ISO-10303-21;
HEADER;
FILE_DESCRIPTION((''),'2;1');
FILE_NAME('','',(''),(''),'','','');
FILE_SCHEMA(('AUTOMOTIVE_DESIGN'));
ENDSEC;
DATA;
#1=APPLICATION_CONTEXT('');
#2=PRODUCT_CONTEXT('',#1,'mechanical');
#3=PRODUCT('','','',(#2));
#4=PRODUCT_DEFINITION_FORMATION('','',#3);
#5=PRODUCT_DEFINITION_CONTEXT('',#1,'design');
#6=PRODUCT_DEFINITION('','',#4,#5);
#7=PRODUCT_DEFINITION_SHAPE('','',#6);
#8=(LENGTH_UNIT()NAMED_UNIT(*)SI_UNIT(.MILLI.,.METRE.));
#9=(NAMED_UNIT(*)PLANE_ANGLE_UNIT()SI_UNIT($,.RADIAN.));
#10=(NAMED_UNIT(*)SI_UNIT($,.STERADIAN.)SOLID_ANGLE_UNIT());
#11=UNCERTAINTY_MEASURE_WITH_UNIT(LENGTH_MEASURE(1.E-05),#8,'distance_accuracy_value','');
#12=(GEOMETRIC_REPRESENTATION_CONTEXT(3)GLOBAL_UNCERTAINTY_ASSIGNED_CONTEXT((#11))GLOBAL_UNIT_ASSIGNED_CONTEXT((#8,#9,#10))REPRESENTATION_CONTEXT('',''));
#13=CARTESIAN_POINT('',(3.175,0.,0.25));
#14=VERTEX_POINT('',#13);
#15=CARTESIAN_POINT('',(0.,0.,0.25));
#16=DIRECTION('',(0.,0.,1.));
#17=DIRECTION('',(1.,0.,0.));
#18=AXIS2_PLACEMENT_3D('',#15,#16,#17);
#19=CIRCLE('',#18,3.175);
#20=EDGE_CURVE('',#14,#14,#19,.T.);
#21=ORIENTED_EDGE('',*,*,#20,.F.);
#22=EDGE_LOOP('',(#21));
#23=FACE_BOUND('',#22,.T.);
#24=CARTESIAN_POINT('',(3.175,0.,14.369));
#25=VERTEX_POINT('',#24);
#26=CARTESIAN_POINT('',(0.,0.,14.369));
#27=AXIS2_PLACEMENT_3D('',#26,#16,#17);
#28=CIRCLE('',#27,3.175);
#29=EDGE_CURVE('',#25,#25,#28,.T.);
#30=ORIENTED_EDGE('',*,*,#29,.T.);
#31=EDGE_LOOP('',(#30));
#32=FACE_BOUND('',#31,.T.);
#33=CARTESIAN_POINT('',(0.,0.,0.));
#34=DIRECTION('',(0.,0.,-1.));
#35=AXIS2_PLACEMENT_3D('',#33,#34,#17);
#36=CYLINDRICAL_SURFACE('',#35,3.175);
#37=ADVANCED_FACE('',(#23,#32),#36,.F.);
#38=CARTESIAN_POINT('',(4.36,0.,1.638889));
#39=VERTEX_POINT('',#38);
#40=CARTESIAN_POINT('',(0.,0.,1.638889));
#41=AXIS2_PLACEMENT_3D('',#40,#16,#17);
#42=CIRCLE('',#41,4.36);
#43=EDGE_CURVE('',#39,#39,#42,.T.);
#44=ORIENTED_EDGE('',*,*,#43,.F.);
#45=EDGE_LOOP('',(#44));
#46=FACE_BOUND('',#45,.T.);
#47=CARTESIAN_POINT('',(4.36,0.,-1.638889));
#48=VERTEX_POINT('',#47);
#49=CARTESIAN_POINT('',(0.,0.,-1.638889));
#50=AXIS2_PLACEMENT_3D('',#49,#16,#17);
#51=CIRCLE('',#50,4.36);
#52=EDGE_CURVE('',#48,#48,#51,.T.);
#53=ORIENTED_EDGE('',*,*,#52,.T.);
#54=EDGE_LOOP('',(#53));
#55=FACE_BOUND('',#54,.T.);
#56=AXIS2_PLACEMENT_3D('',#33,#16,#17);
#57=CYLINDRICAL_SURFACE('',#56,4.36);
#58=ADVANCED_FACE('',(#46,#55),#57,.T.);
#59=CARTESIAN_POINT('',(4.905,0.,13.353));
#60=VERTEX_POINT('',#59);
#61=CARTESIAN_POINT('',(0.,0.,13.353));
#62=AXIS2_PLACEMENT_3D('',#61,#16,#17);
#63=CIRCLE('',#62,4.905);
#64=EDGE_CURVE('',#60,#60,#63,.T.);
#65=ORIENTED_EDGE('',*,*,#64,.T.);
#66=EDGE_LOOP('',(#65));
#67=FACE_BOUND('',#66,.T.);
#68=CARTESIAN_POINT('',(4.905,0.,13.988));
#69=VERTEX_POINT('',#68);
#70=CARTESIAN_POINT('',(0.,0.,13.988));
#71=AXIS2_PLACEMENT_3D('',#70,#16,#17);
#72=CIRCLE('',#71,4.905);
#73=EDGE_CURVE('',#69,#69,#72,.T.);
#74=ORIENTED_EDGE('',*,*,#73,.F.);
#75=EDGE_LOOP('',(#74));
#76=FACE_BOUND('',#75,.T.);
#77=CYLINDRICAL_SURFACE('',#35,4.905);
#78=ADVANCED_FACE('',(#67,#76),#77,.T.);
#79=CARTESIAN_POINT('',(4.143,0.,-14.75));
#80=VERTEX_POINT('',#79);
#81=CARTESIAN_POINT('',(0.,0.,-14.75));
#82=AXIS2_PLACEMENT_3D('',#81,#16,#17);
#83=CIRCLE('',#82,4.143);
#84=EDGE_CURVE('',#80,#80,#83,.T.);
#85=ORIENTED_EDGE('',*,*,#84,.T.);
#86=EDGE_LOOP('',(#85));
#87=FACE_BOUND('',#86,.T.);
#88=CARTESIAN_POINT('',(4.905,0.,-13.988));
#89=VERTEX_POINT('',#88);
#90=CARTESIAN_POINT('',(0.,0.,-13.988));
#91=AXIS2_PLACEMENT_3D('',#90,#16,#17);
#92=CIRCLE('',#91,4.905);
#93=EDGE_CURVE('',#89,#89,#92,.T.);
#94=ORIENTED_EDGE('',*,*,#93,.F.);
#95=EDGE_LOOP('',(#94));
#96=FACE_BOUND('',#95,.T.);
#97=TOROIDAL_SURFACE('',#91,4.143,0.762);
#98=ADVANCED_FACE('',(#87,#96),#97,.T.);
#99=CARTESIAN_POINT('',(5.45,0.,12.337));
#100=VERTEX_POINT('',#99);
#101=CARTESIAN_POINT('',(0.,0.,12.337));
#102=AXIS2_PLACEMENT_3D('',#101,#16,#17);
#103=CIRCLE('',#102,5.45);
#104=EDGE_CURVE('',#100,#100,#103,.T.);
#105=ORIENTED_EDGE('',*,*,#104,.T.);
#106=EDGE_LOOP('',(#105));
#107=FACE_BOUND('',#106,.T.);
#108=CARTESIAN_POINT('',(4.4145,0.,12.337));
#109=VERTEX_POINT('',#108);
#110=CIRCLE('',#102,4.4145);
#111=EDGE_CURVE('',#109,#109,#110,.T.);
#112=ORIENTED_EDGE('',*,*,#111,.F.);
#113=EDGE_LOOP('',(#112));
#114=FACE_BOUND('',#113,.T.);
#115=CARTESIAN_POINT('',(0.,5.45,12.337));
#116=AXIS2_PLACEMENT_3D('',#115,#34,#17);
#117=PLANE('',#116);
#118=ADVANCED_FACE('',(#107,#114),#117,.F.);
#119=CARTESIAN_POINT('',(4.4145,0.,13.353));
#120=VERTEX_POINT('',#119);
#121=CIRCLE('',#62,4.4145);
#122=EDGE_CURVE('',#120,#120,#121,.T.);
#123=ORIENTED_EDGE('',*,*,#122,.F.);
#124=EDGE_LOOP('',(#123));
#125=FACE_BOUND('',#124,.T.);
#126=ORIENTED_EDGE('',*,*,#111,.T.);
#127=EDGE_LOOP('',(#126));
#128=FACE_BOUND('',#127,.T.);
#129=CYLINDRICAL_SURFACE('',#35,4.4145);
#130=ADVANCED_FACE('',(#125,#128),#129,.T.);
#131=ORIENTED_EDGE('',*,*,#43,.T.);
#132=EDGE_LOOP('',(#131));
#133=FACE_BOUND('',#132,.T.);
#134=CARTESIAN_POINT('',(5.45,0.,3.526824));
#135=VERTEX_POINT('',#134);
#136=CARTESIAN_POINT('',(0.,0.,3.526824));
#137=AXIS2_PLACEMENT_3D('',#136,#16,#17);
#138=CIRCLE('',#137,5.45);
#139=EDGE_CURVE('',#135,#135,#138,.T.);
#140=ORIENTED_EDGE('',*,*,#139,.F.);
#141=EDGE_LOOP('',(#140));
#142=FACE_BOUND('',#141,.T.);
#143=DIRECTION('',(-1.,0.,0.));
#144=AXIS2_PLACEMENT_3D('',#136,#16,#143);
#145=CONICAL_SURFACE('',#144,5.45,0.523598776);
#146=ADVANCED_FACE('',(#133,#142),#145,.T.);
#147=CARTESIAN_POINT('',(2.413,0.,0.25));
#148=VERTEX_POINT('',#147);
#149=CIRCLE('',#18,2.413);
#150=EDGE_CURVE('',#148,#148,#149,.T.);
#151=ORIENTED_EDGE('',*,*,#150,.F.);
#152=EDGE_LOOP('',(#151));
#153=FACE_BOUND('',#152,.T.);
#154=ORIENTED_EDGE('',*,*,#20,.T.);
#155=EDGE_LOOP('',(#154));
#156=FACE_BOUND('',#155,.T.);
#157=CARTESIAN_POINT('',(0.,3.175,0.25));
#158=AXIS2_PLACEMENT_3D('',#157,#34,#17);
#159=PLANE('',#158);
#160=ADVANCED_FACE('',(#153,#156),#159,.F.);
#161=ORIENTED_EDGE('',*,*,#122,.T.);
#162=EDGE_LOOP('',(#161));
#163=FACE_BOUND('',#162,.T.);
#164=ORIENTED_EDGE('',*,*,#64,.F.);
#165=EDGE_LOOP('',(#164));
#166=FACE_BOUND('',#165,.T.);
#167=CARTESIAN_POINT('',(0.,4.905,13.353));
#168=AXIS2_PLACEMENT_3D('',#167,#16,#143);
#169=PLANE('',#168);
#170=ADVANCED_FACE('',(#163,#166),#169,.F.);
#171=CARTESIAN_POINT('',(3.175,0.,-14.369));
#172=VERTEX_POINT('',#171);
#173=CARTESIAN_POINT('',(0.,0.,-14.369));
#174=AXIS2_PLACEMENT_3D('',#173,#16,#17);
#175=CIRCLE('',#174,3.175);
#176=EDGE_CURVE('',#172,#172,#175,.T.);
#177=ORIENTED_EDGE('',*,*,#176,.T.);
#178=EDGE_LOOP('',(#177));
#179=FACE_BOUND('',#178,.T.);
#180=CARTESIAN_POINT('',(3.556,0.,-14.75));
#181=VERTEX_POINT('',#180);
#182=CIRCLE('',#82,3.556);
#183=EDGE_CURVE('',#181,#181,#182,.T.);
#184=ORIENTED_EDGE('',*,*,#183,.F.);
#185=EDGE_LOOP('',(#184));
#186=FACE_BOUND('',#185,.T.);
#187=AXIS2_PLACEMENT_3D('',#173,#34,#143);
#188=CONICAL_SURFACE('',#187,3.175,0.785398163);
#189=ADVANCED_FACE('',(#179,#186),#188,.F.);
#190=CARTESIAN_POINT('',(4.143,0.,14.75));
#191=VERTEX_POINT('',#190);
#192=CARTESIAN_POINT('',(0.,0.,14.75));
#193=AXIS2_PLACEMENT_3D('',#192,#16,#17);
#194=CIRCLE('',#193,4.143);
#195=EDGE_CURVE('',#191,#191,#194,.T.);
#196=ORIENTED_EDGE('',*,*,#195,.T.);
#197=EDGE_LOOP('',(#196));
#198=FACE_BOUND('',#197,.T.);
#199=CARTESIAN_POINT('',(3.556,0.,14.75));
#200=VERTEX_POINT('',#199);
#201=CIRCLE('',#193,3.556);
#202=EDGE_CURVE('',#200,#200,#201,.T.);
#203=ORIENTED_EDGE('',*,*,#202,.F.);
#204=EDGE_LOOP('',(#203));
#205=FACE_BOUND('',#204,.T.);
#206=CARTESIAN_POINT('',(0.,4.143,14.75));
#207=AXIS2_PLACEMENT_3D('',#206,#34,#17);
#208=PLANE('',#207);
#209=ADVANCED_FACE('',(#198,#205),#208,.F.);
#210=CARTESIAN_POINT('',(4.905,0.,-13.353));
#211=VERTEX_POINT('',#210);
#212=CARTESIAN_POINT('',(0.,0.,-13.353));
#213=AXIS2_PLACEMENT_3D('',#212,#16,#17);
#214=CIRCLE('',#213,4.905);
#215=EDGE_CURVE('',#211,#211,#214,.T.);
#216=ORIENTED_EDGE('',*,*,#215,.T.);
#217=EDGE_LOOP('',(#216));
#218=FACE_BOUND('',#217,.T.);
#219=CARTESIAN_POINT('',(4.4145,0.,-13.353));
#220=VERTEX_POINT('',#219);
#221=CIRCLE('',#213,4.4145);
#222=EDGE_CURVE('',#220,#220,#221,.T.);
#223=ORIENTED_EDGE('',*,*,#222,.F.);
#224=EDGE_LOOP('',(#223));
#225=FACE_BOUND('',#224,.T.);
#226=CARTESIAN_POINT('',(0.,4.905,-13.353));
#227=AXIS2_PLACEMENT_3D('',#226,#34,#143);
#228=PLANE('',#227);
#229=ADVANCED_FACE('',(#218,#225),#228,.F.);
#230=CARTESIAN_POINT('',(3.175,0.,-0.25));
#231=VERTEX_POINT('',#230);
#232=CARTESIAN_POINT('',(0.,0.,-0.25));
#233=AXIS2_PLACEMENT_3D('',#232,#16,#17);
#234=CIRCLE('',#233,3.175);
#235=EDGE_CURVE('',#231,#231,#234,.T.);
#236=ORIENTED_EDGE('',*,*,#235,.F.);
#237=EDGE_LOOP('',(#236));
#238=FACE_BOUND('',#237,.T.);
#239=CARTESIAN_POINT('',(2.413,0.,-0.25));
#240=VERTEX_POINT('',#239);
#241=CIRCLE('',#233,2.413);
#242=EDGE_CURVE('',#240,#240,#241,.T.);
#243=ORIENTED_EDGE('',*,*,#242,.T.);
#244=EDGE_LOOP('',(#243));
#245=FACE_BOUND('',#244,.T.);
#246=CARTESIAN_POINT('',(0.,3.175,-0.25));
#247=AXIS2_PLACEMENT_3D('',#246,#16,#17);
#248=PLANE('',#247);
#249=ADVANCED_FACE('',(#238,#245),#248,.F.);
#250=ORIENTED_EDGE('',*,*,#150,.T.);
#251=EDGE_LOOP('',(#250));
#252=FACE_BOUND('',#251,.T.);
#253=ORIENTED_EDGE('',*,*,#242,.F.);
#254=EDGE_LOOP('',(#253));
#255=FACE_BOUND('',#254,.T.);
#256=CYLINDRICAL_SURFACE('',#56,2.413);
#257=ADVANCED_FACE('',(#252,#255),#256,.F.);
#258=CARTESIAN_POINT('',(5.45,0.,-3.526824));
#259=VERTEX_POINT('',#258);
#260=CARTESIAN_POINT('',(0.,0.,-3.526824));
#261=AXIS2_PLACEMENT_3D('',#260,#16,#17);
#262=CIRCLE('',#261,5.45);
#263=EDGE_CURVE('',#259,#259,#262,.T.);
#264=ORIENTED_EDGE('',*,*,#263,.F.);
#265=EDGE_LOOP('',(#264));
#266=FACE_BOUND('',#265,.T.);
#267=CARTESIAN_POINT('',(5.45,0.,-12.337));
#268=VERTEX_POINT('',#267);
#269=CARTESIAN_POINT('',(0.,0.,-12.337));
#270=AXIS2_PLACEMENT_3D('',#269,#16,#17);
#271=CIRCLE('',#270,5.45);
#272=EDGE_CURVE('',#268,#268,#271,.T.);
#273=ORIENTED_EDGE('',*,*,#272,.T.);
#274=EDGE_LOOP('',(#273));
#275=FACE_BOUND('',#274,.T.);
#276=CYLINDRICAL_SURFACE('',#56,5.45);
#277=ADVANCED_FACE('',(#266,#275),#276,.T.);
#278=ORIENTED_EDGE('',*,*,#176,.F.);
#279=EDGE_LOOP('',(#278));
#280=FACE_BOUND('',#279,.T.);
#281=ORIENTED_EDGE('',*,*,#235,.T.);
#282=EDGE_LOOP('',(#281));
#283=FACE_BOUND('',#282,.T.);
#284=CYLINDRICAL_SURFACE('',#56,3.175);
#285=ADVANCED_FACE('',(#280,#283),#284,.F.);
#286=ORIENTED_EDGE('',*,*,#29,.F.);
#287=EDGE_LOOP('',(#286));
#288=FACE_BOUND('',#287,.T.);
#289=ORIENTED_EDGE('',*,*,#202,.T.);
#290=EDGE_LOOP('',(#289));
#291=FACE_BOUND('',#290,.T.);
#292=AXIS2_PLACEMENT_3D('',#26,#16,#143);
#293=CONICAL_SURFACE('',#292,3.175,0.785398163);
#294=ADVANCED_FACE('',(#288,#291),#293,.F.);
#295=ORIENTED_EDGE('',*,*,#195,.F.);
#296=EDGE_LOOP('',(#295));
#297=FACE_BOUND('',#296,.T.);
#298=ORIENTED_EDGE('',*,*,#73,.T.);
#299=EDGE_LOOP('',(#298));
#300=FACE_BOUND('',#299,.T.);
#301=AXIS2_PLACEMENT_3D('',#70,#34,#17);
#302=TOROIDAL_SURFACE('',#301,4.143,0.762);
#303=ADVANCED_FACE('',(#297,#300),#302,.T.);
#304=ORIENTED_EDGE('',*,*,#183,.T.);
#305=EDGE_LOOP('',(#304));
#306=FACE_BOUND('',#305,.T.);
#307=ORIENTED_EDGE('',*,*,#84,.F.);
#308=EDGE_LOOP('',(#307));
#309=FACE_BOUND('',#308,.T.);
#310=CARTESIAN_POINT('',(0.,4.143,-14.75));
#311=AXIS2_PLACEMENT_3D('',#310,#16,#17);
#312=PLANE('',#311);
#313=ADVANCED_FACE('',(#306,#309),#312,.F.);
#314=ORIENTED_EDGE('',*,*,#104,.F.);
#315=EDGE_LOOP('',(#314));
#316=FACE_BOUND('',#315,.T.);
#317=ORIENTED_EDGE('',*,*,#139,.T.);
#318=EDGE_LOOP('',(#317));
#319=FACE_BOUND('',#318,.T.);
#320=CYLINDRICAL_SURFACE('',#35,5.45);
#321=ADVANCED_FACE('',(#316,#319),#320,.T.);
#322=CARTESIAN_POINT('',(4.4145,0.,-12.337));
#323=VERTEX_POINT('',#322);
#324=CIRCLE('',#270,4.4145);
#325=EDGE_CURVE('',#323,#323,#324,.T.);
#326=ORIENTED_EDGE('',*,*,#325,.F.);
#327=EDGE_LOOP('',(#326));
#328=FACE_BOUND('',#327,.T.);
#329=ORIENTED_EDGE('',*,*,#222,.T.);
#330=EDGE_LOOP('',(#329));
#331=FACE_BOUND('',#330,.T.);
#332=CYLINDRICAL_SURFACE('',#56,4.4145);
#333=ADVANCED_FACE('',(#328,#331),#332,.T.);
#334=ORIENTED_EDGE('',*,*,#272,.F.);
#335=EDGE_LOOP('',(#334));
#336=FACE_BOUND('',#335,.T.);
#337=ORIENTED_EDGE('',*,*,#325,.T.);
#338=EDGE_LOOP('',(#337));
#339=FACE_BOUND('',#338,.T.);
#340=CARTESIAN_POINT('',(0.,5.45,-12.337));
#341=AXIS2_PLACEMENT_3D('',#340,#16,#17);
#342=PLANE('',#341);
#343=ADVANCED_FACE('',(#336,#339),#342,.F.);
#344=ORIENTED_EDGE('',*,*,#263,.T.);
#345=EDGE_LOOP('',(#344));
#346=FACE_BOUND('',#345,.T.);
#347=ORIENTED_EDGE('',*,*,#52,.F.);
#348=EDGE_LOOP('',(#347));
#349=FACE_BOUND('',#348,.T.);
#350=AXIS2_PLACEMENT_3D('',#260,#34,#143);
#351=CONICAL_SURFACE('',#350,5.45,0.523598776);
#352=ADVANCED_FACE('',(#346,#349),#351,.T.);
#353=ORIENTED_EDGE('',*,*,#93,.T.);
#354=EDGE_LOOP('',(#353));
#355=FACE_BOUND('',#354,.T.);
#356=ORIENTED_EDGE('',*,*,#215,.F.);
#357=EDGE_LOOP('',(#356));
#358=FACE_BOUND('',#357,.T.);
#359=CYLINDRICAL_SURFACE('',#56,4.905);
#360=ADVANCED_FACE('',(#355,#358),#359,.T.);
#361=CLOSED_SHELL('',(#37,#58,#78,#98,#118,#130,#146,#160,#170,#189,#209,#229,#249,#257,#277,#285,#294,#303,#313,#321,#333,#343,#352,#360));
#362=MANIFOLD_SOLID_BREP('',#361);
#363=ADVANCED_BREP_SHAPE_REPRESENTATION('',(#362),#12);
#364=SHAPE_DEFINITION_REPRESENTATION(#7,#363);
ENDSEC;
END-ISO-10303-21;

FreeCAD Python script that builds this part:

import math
import FreeCAD as App
import Part
import Sketcher

V = App.Vector
Q = App.Units.Quantity

doc = App.newDocument("Part")
body = doc.addObject("PartDesign::Body", "Body")

# Sketch on YZ plane
sketch1 = body.newObject("Sketcher::SketchObject", "Sketch")
sketch1.AttachmentSupport = (doc.getObject("YZ_Plane"), [""])
sketch1.MapMode = "FlatFace"
sketch1.addGeometry([
    Part.LineSegment(V(4.91, -13.99, 0), V(4.91, -13.35, 0)),  # 0
    Part.LineSegment(V(4.91, -13.35, 0), V(4.41, -13.35, 0)),  # 1
    Part.LineSegment(V(4.41, -13.35, 0), V(4.41, -12.34, 0)),  # 2
    Part.LineSegment(V(4.41, -12.34, 0), V(5.45, -12.34, 0)),  # 3
    Part.LineSegment(V(5.45, -12.34, 0), V(5.45, -3.53, 0)),  # 4
    Part.LineSegment(V(5.45, -3.53, 0), V(4.36, -1.64, 0)),  # 5
    Part.LineSegment(V(4.36, -1.64, 0), V(4.36, 0, 0)),  # 6
    Part.LineSegment(V(4.36, 0, 0), V(2.41, 0, 0)),  # 7
    Part.LineSegment(V(2.41, 0, 0), V(2.41, -0.25, 0)),  # 8
    Part.LineSegment(V(2.41, -0.25, 0), V(3.17, -0.25, 0)),  # 9
    Part.LineSegment(V(3.17, -0.25, 0), V(3.17, -14.37, 0)),  # 10
    Part.LineSegment(V(3.17, -14.37, 0), V(3.56, -14.75, 0)),  # 11
    Part.LineSegment(V(3.56, -14.75, 0), V(4.14, -14.75, 0)),  # 12
    Part.ArcOfCircle(Part.Circle(V(4.14, -13.99, 0), V(0, 0, 1), 0.76), math.radians(-90), math.radians(0)),  # 13
], False)
sketch1.addConstraint([
    Sketcher.Constraint("Coincident", 0, 2, 1, 1),
    Sketcher.Constraint("Coincident", 1, 2, 2, 1),
    Sketcher.Constraint("Coincident", 2, 2, 3, 1),
    Sketcher.Constraint("Coincident", 3, 2, 4, 1),
    Sketcher.Constraint("Coincident", 4, 2, 5, 1),
    Sketcher.Constraint("Coincident", 5, 2, 6, 1),
    Sketcher.Constraint("Coincident", 6, 2, 7, 1),
    Sketcher.Constraint("Coincident", 7, 2, 8, 1),
    Sketcher.Constraint("Coincident", 8, 2, 9, 1),
    Sketcher.Constraint("Coincident", 9, 2, 10, 1),
    Sketcher.Constraint("Coincident", 10, 2, 11, 1),
    Sketcher.Constraint("Coincident", 11, 2, 12, 1),
    Sketcher.Constraint("Tangent", 12, 2, 13, 1),
    Sketcher.Constraint("Tangent", 13, 2, 0, 1),
    Sketcher.Constraint("Vertical", 0),
    Sketcher.Constraint("Horizontal", 1),
    Sketcher.Constraint("Vertical", 2),
    Sketcher.Constraint("Horizontal", 3),
    Sketcher.Constraint("Vertical", 4),
    Sketcher.Constraint("Vertical", 6),
    Sketcher.Constraint("Horizontal", 7),
    Sketcher.Constraint("Vertical", 8),
    Sketcher.Constraint("Horizontal", 9),
    Sketcher.Constraint("Vertical", 10),
    Sketcher.Constraint("Horizontal", 12),
    Sketcher.Constraint("PointOnObject", 6, 2, -1),
    Sketcher.Constraint("Radius", 13, Q("0.03 in")),
    Sketcher.Constraint("Angle", 5, Q("120 deg")),
    Sketcher.Constraint("Angle", 11, Q("-45 deg")),
    Sketcher.Constraint("DistanceX", 9, 1, 9, 2, Q("0.03 in")),
    Sketcher.Constraint("DistanceY", 2, 1, 2, 2, Q("0.04 in")),
    Sketcher.Constraint("DistanceY", 0, 1, 0, 2, Q("0.025 in")),
    Sketcher.Constraint("DistanceX", -1, 1, 11, 2, Q("0.14 in")),
    Sketcher.Constraint("DistanceY", 10, 2, 1, 2, Q("0.04 in")),
    Sketcher.Constraint("DistanceX", 1, 2, 1, 1, 0.4905),
    Sketcher.Constraint("DistanceX", 3, 1, 3, 2, 1.0355),
    Sketcher.Constraint("DistanceX", 7, 2, 7, 1, 1.947),
    Sketcher.Constraint("DistanceX", 12, 1, 12, 2, 0.587),
    Sketcher.Constraint("DistanceY", 8, 2, 8, 1, 0.25),
    Sketcher.Constraint("DistanceY", 10, 2, 10, 1, 14.119),
    Sketcher.Constraint("DistanceY", 6, 1, 6, 2, 1.638889),
])
revolution = body.newObject("PartDesign::Revolution", "Revolution")
revolution.Profile = sketch1
revolution.ReferenceAxis = (sketch1, ["V_Axis"])
revolution.Angle = 360
doc.recompute()

mirrored = body.newObject("PartDesign::Mirrored", "Mirrored")
mirrored.Originals = [revolution]
mirrored.MirrorPlane = (doc.getObject("XY_Plane"), [""])
body.Tip = mirrored

doc.recompute()
